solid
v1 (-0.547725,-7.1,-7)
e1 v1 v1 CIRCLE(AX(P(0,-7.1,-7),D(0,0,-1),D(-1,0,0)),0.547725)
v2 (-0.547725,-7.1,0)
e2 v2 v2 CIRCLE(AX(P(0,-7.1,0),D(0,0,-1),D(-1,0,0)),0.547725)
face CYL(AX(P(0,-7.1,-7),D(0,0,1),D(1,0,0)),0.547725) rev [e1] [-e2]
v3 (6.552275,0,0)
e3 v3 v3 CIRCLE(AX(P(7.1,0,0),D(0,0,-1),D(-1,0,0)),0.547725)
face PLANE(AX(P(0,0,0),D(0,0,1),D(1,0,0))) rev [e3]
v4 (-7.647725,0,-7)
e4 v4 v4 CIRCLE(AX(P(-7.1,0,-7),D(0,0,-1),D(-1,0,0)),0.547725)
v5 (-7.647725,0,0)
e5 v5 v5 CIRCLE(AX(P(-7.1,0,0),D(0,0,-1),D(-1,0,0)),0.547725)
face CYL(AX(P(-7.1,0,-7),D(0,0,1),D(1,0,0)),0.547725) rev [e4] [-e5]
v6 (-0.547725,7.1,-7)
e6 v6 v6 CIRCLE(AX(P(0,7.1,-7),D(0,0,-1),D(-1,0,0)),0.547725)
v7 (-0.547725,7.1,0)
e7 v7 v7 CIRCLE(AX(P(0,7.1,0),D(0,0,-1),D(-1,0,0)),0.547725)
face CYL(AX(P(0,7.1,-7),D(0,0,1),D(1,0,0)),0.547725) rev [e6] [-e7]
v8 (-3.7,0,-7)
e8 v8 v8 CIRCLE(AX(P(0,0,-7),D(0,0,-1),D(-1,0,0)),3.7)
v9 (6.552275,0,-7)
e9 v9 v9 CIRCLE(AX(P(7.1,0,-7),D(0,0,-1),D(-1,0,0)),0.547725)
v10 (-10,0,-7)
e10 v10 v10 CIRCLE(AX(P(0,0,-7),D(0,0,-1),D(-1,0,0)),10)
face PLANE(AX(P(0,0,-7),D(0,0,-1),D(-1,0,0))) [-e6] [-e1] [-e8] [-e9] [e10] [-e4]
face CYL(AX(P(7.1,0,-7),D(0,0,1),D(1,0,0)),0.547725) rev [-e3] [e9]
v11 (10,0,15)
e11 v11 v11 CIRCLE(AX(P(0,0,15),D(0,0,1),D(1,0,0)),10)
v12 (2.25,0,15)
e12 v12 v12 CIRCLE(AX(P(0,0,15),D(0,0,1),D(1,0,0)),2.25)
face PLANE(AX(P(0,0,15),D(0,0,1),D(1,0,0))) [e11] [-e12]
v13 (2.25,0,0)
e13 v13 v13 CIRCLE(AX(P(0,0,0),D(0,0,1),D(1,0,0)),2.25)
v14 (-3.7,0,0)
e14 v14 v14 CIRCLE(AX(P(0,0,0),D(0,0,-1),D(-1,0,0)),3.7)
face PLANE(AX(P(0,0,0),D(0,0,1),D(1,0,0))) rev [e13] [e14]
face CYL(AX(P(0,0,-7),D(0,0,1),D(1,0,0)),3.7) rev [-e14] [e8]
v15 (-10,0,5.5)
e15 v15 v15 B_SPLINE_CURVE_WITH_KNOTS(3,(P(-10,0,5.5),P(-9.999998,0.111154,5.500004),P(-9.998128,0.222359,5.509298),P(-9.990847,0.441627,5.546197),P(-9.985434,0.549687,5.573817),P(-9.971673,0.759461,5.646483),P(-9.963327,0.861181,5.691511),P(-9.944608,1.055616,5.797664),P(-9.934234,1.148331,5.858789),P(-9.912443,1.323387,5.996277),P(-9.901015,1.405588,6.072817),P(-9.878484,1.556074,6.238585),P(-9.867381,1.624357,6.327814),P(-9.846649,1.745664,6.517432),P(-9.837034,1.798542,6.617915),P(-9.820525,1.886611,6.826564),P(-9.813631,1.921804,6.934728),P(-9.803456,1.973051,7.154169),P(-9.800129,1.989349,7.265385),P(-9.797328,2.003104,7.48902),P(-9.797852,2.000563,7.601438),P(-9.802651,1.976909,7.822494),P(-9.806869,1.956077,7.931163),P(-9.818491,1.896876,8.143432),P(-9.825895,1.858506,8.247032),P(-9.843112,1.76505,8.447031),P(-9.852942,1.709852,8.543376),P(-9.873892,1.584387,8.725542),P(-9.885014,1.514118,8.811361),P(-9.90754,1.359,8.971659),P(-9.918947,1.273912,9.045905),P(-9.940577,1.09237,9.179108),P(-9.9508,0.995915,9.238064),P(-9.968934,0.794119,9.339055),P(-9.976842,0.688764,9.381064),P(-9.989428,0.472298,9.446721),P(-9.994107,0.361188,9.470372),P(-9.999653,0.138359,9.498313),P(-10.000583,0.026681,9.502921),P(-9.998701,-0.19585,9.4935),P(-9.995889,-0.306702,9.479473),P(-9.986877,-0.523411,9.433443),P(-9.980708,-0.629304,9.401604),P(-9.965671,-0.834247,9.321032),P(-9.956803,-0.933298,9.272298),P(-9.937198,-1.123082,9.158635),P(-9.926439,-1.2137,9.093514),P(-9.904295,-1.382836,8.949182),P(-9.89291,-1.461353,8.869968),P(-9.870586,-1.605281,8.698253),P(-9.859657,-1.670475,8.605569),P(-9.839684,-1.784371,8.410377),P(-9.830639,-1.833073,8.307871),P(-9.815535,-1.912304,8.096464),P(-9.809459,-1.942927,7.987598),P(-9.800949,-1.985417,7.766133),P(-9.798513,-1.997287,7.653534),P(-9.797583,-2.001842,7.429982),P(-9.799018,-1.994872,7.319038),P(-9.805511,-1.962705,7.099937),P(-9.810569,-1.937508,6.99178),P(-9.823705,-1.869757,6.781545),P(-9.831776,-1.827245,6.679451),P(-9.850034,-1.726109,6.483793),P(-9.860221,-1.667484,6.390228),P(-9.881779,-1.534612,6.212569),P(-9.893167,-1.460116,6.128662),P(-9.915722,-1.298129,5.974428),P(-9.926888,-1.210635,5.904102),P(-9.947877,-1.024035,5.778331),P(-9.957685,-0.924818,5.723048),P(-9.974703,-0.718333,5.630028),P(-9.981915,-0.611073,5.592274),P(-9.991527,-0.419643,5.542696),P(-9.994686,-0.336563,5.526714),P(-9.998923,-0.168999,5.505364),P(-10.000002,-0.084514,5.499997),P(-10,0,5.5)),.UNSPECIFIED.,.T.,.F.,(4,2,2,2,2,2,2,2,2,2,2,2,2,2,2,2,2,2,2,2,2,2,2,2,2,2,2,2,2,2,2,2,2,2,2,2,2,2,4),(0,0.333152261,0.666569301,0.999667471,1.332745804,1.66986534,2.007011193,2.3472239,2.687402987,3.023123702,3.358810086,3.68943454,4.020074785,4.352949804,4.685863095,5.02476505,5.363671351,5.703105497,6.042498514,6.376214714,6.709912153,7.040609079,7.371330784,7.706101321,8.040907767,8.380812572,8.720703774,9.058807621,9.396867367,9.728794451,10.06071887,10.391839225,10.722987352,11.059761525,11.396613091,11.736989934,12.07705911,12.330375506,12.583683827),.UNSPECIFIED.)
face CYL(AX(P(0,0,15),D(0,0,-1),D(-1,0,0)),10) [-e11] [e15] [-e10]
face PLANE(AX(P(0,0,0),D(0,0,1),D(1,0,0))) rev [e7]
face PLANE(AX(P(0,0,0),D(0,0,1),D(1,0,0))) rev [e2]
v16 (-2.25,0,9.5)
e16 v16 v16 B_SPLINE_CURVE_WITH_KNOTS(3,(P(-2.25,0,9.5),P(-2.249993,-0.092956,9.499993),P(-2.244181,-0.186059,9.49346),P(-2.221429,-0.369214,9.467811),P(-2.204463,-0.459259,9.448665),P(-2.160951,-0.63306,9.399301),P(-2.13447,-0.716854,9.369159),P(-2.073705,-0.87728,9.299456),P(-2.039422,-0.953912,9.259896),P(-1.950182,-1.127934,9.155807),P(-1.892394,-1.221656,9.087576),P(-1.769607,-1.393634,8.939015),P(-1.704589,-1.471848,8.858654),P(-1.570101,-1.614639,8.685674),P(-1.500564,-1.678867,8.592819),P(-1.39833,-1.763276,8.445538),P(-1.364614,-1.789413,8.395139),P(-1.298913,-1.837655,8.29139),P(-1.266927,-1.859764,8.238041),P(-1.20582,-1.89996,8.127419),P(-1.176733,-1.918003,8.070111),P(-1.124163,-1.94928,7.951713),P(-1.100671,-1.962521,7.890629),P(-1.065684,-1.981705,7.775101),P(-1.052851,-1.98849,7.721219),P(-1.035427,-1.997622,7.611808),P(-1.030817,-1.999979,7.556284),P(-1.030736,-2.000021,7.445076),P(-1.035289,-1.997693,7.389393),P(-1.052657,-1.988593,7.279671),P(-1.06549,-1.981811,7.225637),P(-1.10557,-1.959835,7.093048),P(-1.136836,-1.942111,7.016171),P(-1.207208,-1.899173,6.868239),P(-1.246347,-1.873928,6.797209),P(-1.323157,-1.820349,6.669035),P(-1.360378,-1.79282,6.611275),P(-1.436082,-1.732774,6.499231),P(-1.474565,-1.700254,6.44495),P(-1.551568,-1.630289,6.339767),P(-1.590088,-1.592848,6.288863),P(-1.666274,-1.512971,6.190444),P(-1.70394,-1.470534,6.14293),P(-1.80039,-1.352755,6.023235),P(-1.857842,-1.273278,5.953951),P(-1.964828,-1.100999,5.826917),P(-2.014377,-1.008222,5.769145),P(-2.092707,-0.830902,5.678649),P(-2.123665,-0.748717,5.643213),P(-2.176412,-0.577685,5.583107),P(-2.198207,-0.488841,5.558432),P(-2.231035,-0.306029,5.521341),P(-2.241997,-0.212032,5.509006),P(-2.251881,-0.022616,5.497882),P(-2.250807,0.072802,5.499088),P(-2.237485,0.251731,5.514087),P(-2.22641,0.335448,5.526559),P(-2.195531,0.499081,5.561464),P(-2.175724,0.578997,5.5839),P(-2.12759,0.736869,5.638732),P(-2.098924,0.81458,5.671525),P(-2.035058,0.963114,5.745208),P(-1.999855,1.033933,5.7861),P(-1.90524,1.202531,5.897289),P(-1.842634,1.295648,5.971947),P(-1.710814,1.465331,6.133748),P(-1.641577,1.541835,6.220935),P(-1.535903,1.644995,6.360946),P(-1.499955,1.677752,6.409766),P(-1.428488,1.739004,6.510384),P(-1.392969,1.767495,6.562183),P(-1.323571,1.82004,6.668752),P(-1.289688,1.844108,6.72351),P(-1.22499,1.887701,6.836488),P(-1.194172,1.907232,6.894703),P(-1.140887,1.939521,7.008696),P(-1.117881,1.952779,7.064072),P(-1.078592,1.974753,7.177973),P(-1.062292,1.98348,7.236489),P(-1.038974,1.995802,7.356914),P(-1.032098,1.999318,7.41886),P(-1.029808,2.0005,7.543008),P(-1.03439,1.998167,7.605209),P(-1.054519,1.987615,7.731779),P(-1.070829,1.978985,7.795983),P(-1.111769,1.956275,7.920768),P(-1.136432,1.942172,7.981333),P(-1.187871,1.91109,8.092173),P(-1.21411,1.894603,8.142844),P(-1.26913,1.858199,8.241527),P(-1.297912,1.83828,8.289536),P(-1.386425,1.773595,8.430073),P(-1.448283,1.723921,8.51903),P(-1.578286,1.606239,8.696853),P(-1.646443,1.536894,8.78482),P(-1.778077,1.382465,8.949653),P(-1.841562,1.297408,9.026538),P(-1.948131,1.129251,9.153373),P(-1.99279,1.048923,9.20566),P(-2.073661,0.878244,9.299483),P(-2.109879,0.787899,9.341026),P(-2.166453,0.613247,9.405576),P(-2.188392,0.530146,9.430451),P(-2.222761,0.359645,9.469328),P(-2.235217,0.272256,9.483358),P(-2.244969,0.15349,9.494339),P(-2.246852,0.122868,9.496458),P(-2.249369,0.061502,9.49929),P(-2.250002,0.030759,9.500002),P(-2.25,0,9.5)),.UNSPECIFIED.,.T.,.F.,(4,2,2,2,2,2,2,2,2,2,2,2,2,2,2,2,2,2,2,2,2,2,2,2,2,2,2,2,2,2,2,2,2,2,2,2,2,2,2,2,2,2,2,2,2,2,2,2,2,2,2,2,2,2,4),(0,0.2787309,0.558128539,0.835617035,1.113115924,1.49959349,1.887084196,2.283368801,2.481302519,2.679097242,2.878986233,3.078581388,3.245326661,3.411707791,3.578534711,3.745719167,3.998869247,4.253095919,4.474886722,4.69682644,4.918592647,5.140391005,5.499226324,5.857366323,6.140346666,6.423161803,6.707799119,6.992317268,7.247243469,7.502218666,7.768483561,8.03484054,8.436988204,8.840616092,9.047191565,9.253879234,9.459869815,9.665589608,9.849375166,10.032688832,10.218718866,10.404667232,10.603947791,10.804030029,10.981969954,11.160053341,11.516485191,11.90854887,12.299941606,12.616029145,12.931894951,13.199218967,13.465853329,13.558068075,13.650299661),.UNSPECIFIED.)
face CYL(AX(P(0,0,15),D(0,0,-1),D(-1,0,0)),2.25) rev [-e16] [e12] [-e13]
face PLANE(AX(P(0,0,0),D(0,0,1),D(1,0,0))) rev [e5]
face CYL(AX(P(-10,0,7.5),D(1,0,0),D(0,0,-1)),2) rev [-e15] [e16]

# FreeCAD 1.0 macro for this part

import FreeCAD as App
import Part
import Sketcher
from FreeCAD import Vector
Q = App.Units.Quantity

doc = App.newDocument("Part")
body = doc.addObject("PartDesign::Body", "Body")

# Sketch on XY plane
sketch1 = doc.addObject("Sketcher::SketchObject", "Sketch")
body.addObject(sketch1)
sketch1.AttachmentSupport = (doc.XY_Plane, [""])
sketch1.MapMode = "FlatFace"
sketch1.addGeometry(Part.Circle(Vector(0, 0, 0), Vector(0, 0, 1), 10), False)
sketch1.addGeometry(Part.Circle(Vector(0, 0, 0), Vector(0, 0, 1), 2.25), False)
sketch1.addConstraint(Sketcher.Constraint("Coincident", 0, 3, -1, 1))
sketch1.addConstraint(Sketcher.Constraint("Coincident", 1, 3, -1, 1))
sketch1.addConstraint(Sketcher.Constraint("Diameter", 0, Q("20 mm")))
sketch1.addConstraint(Sketcher.Constraint("Diameter", 1, Q("4.5 mm")))
pad1 = doc.addObject("PartDesign::Pad", "Pad")
body.addObject(pad1)
pad1.Profile = sketch1
pad1.Length = 15

# Sketch on YZ plane
sketch2 = doc.addObject("Sketcher::SketchObject", "Sketch001")
body.addObject(sketch2)
sketch2.AttachmentSupport = (doc.YZ_Plane, [""])
sketch2.MapMode = "FlatFace"
sketch2.addGeometry(Part.Circle(Vector(0, 7.5, 0), Vector(0, 0, 1), 2), False)
sketch2.addConstraint(Sketcher.Constraint("PointOnObject", 0, 3, -2))
sketch2.addConstraint(Sketcher.Constraint("Diameter", 0, Q("4 mm")))
sketch2.addConstraint(Sketcher.Constraint("DistanceY", -1, 1, 0, 3, Q("7.5 mm")))
pocket1 = doc.addObject("PartDesign::Pocket", "Pocket")
body.addObject(pocket1)
pocket1.Profile = sketch2
pocket1.Length = 10

# Sketch on XY plane
sketch3 = doc.addObject("Sketcher::SketchObject", "Sketch002")
body.addObject(sketch3)
sketch3.AttachmentSupport = (doc.XY_Plane, [""])
sketch3.MapMode = "FlatFace"
sketch3.addGeometry(Part.Circle(Vector(0, 0, 0), Vector(0, 0, 1), 10), False)
sketch3.addGeometry(Part.Circle(Vector(0, -7.1, 0), Vector(0, 0, 1), 0.547725), False)
sketch3.addGeometry(Part.Circle(Vector(7.1, 0, 0), Vector(0, 0, 1), 0.547725), False)
sketch3.addGeometry(Part.Circle(Vector(0, 0, 0), Vector(0, 0, 1), 3.7), False)
sketch3.addGeometry(Part.Circle(Vector(-7.1, 0, 0), Vector(0, 0, 1), 0.547725), False)
sketch3.addGeometry(Part.Circle(Vector(0, 7.1, 0), Vector(0, 0, 1), 0.547725), False)
sketch3.addConstraint(Sketcher.Constraint("Coincident", 0, 3, -1, 1))
sketch3.addConstraint(Sketcher.Constraint("Coincident", 3, 3, -1, 1))
sketch3.addConstraint(Sketcher.Constraint("Equal", 1, 2))
sketch3.addConstraint(Sketcher.Constraint("Equal", 2, 4))
sketch3.addConstraint(Sketcher.Constraint("Equal", 4, 5))
sketch3.addConstraint(Sketcher.Constraint("Symmetric", 2, 3, 4, 3, -1, 1))
sketch3.addConstraint(Sketcher.Constraint("Symmetric", 1, 3, 5, 3, -1, 1))
sketch3.addConstraint(Sketcher.Constraint("PointOnObject", 1, 3, -2))
sketch3.addConstraint(Sketcher.Constraint("PointOnObject", 2, 3, -1))
sketch3.addConstraint(Sketcher.Constraint("Diameter", 0, Q("20 mm")))
sketch3.addConstraint(Sketcher.Constraint("Diameter", 3, Q("7.4 mm")))
sketch3.addConstraint(Sketcher.Constraint("DistanceY", 1, 3, -1, 1, Q("7.1 mm")))
sketch3.addConstraint(Sketcher.Constraint("DistanceX", -1, 1, 2, 3, Q("7.1 mm")))
sketch3.addConstraint(Sketcher.Constraint("Diameter", 1, Q("1.095451 mm")))
pad2 = doc.addObject("PartDesign::Pad", "Pad001")
body.addObject(pad2)
pad2.Profile = sketch3
pad2.Length = 7
pad2.Reversed = True

doc.recompute()
